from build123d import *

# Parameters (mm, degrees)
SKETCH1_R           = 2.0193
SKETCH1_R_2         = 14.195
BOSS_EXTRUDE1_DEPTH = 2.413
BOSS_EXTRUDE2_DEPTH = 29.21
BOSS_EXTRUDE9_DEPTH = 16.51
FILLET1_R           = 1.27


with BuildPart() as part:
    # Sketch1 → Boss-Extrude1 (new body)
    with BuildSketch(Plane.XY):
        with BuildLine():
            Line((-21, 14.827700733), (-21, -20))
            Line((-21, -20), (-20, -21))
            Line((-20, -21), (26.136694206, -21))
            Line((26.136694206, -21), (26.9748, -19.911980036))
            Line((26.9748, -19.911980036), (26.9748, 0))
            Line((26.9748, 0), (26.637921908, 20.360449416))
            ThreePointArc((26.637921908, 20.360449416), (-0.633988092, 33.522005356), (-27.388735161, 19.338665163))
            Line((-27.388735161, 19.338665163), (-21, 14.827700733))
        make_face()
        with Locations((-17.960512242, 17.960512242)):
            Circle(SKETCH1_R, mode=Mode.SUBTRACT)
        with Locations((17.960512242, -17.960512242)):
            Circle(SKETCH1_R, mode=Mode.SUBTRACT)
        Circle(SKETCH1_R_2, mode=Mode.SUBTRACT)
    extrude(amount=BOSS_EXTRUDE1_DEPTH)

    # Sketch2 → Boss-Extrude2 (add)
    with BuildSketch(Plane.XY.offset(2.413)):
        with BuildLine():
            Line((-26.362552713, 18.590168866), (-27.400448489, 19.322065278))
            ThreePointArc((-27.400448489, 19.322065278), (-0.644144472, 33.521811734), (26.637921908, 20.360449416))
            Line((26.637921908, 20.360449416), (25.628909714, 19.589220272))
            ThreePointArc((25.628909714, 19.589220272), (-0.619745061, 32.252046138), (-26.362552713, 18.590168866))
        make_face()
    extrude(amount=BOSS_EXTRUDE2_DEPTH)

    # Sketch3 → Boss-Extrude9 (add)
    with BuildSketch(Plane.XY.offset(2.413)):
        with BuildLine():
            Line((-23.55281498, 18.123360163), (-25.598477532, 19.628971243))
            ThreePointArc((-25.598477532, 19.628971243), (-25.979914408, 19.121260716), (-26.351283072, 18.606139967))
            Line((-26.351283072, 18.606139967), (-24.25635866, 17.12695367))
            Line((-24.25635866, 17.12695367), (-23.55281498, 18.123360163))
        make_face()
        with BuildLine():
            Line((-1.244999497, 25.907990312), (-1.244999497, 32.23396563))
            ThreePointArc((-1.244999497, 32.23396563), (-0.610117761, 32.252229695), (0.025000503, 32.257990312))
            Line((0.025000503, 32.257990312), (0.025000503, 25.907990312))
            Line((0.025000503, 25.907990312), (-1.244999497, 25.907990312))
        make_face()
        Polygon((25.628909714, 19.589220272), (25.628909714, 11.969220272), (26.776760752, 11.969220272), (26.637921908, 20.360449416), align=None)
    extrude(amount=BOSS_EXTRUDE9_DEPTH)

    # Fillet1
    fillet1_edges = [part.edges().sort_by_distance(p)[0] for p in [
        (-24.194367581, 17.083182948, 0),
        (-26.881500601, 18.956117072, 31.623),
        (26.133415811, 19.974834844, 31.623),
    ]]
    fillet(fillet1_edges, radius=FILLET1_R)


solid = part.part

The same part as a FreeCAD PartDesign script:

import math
import FreeCAD as App
import Part
import Sketcher
from FreeCAD import Vector
Q = App.Units.Quantity


def edges_at(feature, points):
    """Names of the edges that pass closest to the given points."""
    edges = feature.Shape.Edges
    near = lambda p: min(range(len(edges)), key=lambda i: edges[i].distToShape(Part.Vertex(*p))[0])
    return sorted({f"Edge{near(p) + 1}" for p in points})

doc = App.newDocument("Part")
body = doc.addObject("PartDesign::Body", "Body")

# Sketch on XY plane
sketch1 = body.newObject("Sketcher::SketchObject", "Sketch")
sketch1.AttachmentSupport = (doc.getObject("XY_Plane"), [""])
sketch1.MapMode = "FlatFace"
sketch1.addGeometry([
    Part.LineSegment(Vector(-21, 14.827701, 0), Vector(-21, -20, 0)),  # 0
    Part.LineSegment(Vector(-21, -20, 0), Vector(-20, -21, 0)),  # 1
    Part.LineSegment(Vector(-20, -21, 0), Vector(26.136694, -21, 0)),  # 2
    Part.LineSegment(Vector(26.136694, -21, 0), Vector(26.9748, -19.91198, 0)),  # 3
    Part.LineSegment(Vector(26.9748, -19.91198, 0), Vector(26.9748, 0, 0)),  # 4
    Part.LineSegment(Vector(26.9748, 0, 0), Vector(26.637922, 20.360449, 0)),  # 5
    Part.ArcOfCircle(Part.Circle(Vector(0, 0, 0), Vector(0, 0, 1), 33.528), math.radians(37.392154), math.radians(144.774812)),  # 6
    Part.LineSegment(Vector(-27.388735, 19.338665, 0), Vector(-21, 14.827701, 0)),  # 7
    Part.Circle(Vector(17.960512, -17.960512, 0), Vector(0, 0, 1), 2.0193),  # 8
    Part.Circle(Vector(0, 0, 0), Vector(0, 0, 1), 14.195),  # 9
    Part.Circle(Vector(-17.960512, 17.960512, 0), Vector(0, 0, 1), 2.0193),  # 10
], False)
sketch1.addConstraint([
    Sketcher.Constraint("Coincident", 0, 2, 1, 1),
    Sketcher.Constraint("Coincident", 1, 2, 2, 1),
    Sketcher.Constraint("Coincident", 2, 2, 3, 1),
    Sketcher.Constraint("Coincident", 3, 2, 4, 1),
    Sketcher.Constraint("Coincident", 4, 2, 5, 1),
    Sketcher.Constraint("Coincident", 5, 2, 6, 1),
    Sketcher.Constraint("Coincident", 6, 2, 7, 1),
    Sketcher.Constraint("Coincident", 7, 2, 0, 1),
    Sketcher.Constraint("Vertical", 0),
    Sketcher.Constraint("Horizontal", 2),
    Sketcher.Constraint("Vertical", 4),
    Sketcher.Constraint("Coincident", 6, 3, -1, 1),
    Sketcher.Constraint("Coincident", 9, 3, -1, 1),
    Sketcher.Constraint("Equal", 8, 10),
    Sketcher.Constraint("Symmetric", 8, 3, 10, 3, -1, 1),
    Sketcher.Constraint("PointOnObject", 4, 2, -1),
    Sketcher.Constraint("Radius", 6, Q("1.32 in")),
    Sketcher.Constraint("Diameter", 8, Q("0.159 in")),
    Sketcher.Constraint("Angle", 1, Q("-45 deg")),
    Sketcher.Constraint("Diameter", 9, Q("28.39 mm")),
    Sketcher.Constraint("DistanceX", -1, 1, 3, 2, Q("1.062 in")),
    Sketcher.Constraint("DistanceY", 0, 2, 0, 1, Q("34.827701 mm")),
    Sketcher.Constraint("DistanceY", 4, 1, 4, 2, Q("19.91198 mm")),
    Sketcher.Constraint("DistanceX", 0, 2, -1, 1, Q("21 mm")),
    Sketcher.Constraint("DistanceY", 0, 2, -1, 1, Q("20 mm")),
    Sketcher.Constraint("DistanceX", 1, 2, -1, 1, Q("20 mm")),
    Sketcher.Constraint("DistanceX", 2, 1, 2, 2, Q("46.136694 mm")),
    Sketcher.Constraint("DistanceX", -1, 1, 5, 2, Q("26.637922 mm")),
    Sketcher.Constraint("DistanceX", 8, 3, 2, 2, Q("8.176182 mm")),
    Sketcher.Constraint("DistanceY", 8, 3, 5, 2, Q("38.320962 mm")),
    Sketcher.Constraint("DistanceX", 6, 2, -1, 1, Q("27.388735 mm")),
])
pad1 = body.newObject("PartDesign::Pad", "Pad")
pad1.Profile = sketch1
pad1.Length = Q("0.095 in")

# Sketch on XY plane
sketch2 = body.newObject("Sketcher::SketchObject", "Sketch001")
sketch2.AttachmentSupport = (doc.getObject("XY_Plane"), [""])
sketch2.MapMode = "FlatFace"
sketch2.AttachmentOffset = App.Placement(Vector(0, 0, 0.095 * 25.4), App.Rotation())
sketch2.addGeometry([
    Part.LineSegment(Vector(-27.400448, 19.322065, 0), Vector(-26.362553, 18.590169, 0)),
    Part.ArcOfCircle(Part.Circle(Vector(0, 0, 0), Vector(0, 0, 1), 32.258), math.radians(37.392154), math.radians(144.80953)),
    Part.LineSegment(Vector(25.62891, 19.58922, 0), Vector(26.637922, 20.360449, 0)),
    Part.ArcOfCircle(Part.Circle(Vector(0, 0, 0), Vector(0, 0, 1), 33.528), math.radians(37.392154), math.radians(144.80953)),
], False)
sketch2.addConstraint([
    Sketcher.Constraint("Coincident", 0, 2, 1, 2),
    Sketcher.Constraint("Coincident", 1, 1, 2, 1),
    Sketcher.Constraint("Coincident", 2, 2, 3, 1),
    Sketcher.Constraint("Coincident", 3, 2, 0, 1),
    Sketcher.Constraint("Coincident", 1, 3, -1, 1),
    Sketcher.Constraint("Coincident", 3, 3, -1, 1),
    Sketcher.Constraint("Radius", 1, Q("1.27 in")),
    Sketcher.Constraint("Radius", 3, Q("1.32 in")),
    Sketcher.Constraint("DistanceY", -1, 1, 0, 2, Q("18.590169 mm")),
    Sketcher.Constraint("DistanceX", -1, 1, 1, 1, Q("25.62891 mm")),
    Sketcher.Constraint("DistanceX", -1, 1, 2, 2, Q("26.637922 mm")),
    Sketcher.Constraint("DistanceX", 3, 2, -1, 1, Q("27.400448 mm")),
])
pad2 = body.newObject("PartDesign::Pad", "Pad001")
pad2.Profile = sketch2
pad2.Length = Q("1.15 in")

# Sketch on XY plane
sketch3 = body.newObject("Sketcher::SketchObject", "Sketch002")
sketch3.AttachmentSupport = (doc.getObject("XY_Plane"), [""])
sketch3.MapMode = "FlatFace"
sketch3.AttachmentOffset = App.Placement(Vector(0, 0, 0.095 * 25.4), App.Rotation())
sketch3.addGeometry([
    Part.LineSegment(Vector(-23.552815, 18.12336, 0), Vector(-25.598478, 19.628971, 0)),  # 0
    Part.ArcOfCircle(Part.Circle(Vector(0, 0, 0), Vector(0, 0, 1), 32.258), math.radians(142.518927), math.radians(144.774812)),  # 1
    Part.LineSegment(Vector(-26.351283, 18.60614, 0), Vector(-24.256359, 17.126954, 0)),  # 2
    Part.LineSegment(Vector(-24.256359, 17.126954, 0), Vector(-23.552815, 18.12336, 0)),  # 3
    Part.LineSegment(Vector(-1.244999, 32.233966, 0), Vector(-1.244999, 25.90799, 0)),  # 4
    Part.LineSegment(Vector(-1.244999, 25.90799, 0), Vector(0.025001, 25.90799, 0)),  # 5
    Part.LineSegment(Vector(0.025001, 25.90799, 0), Vector(0.025001, 32.25799, 0)),  # 6
    Part.ArcOfCircle(Part.Circle(Vector(0, -0.000001, 0), Vector(0, 0, 1), 32.258001), math.radians(89.955595), math.radians(92.211883)),  # 7
    Part.LineSegment(Vector(25.62891, 19.58922, 0), Vector(25.62891, 11.96922, 0)),  # 8
    Part.LineSegment(Vector(25.62891, 11.96922, 0), Vector(26.776761, 11.96922, 0)),  # 9
    Part.LineSegment(Vector(26.776761, 11.96922, 0), Vector(26.637922, 20.360449, 0)),  # 10
    Part.LineSegment(Vector(26.637922, 20.360449, 0), Vector(25.62891, 19.58922, 0)),  # 11
], False)
sketch3.addConstraint([
    Sketcher.Constraint("Coincident", 0, 2, 1, 1),
    Sketcher.Constraint("Coincident", 1, 2, 2, 1),
    Sketcher.Constraint("Coincident", 2, 2, 3, 1),
    Sketcher.Constraint("Coincident", 3, 2, 0, 1),
    Sketcher.Constraint("Coincident", 4, 2, 5, 1),
    Sketcher.Constraint("Coincident", 5, 2, 6, 1),
    Sketcher.Constraint("Coincident", 6, 2, 7, 1),
    Sketcher.Constraint("Coincident", 7, 2, 4, 1),
    Sketcher.Constraint("Coincident", 8, 2, 9, 1),
    Sketcher.Constraint("Coincident", 9, 2, 10, 1),
    Sketcher.Constraint("Coincident", 10, 2, 11, 1),
    Sketcher.Constraint("Coincident", 11, 2, 8, 1),
    Sketcher.Constraint("Vertical", 4),
    Sketcher.Constraint("Horizontal", 5),
    Sketcher.Constraint("Vertical", 6),
    Sketcher.Constraint("Vertical", 8),
    Sketcher.Constraint("Horizontal", 9),
    Sketcher.Constraint("Coincident", 1, 3, -1, 1),
    Sketcher.Constraint("Coincident", 7, 3, -1, 1),
    Sketcher.Constraint("Equal", 1, 7),
    Sketcher.Constraint("Perpendicular", 2, 3),
    Sketcher.Constraint("Radius", 1, Q("1.27 in")),
    Sketcher.Constraint("DistanceY", 8, 2, 8, 1, Q("0.3 in")),
    Sketcher.Constraint("Distance", 0, Q("0.1 in")),
    Sketcher.Constraint("DistanceX", 5, 1, 5, 2, Q("0.05 in")),
    Sketcher.Constraint("DistanceY", 6, 1, 6, 2, Q("0.25 in")),
    Sketcher.Constraint("Distance", 11, Q("0.05 in")),
    Sketcher.Constraint("DistanceX", 9, 1, 9, 2, Q("1.147851 mm")),
    Sketcher.Constraint("DistanceX", 4, 2, -1, 1, Q("1.244999 mm")),
    Sketcher.Constraint("DistanceY", -1, 1, 0, 2, Q("19.628971 mm")),
    Sketcher.Constraint("DistanceY", -1, 1, 1, 2, Q("18.60614 mm")),
    Sketcher.Constraint("DistanceX", 2, 2, -1, 1, Q("24.256359 mm")),
    Sketcher.Constraint("DistanceY", -1, 1, 3, 2, Q("18.12336 mm")),
    Sketcher.Constraint("DistanceX", -1, 1, 8, 2, Q("25.62891 mm")),
    Sketcher.Constraint("DistanceY", -1, 1, 8, 2, Q("11.96922 mm")),
    Sketcher.Constraint("DistanceX", -1, 1, 10, 2, Q("26.637922 mm")),
])
pad3 = body.newObject("PartDesign::Pad", "Pad002")
pad3.Profile = sketch3
pad3.Length = Q("0.65 in")
doc.recompute()

fillet = body.newObject("PartDesign::Fillet", "Fillet")
fillet.Base = (pad3, edges_at(pad3, [(-24.194, 17.083, 0), (-26.882, 18.956, 31.623), (26.133, 19.975, 31.623)]))
fillet.Radius = Q("0.05 in")

doc.recompute()
